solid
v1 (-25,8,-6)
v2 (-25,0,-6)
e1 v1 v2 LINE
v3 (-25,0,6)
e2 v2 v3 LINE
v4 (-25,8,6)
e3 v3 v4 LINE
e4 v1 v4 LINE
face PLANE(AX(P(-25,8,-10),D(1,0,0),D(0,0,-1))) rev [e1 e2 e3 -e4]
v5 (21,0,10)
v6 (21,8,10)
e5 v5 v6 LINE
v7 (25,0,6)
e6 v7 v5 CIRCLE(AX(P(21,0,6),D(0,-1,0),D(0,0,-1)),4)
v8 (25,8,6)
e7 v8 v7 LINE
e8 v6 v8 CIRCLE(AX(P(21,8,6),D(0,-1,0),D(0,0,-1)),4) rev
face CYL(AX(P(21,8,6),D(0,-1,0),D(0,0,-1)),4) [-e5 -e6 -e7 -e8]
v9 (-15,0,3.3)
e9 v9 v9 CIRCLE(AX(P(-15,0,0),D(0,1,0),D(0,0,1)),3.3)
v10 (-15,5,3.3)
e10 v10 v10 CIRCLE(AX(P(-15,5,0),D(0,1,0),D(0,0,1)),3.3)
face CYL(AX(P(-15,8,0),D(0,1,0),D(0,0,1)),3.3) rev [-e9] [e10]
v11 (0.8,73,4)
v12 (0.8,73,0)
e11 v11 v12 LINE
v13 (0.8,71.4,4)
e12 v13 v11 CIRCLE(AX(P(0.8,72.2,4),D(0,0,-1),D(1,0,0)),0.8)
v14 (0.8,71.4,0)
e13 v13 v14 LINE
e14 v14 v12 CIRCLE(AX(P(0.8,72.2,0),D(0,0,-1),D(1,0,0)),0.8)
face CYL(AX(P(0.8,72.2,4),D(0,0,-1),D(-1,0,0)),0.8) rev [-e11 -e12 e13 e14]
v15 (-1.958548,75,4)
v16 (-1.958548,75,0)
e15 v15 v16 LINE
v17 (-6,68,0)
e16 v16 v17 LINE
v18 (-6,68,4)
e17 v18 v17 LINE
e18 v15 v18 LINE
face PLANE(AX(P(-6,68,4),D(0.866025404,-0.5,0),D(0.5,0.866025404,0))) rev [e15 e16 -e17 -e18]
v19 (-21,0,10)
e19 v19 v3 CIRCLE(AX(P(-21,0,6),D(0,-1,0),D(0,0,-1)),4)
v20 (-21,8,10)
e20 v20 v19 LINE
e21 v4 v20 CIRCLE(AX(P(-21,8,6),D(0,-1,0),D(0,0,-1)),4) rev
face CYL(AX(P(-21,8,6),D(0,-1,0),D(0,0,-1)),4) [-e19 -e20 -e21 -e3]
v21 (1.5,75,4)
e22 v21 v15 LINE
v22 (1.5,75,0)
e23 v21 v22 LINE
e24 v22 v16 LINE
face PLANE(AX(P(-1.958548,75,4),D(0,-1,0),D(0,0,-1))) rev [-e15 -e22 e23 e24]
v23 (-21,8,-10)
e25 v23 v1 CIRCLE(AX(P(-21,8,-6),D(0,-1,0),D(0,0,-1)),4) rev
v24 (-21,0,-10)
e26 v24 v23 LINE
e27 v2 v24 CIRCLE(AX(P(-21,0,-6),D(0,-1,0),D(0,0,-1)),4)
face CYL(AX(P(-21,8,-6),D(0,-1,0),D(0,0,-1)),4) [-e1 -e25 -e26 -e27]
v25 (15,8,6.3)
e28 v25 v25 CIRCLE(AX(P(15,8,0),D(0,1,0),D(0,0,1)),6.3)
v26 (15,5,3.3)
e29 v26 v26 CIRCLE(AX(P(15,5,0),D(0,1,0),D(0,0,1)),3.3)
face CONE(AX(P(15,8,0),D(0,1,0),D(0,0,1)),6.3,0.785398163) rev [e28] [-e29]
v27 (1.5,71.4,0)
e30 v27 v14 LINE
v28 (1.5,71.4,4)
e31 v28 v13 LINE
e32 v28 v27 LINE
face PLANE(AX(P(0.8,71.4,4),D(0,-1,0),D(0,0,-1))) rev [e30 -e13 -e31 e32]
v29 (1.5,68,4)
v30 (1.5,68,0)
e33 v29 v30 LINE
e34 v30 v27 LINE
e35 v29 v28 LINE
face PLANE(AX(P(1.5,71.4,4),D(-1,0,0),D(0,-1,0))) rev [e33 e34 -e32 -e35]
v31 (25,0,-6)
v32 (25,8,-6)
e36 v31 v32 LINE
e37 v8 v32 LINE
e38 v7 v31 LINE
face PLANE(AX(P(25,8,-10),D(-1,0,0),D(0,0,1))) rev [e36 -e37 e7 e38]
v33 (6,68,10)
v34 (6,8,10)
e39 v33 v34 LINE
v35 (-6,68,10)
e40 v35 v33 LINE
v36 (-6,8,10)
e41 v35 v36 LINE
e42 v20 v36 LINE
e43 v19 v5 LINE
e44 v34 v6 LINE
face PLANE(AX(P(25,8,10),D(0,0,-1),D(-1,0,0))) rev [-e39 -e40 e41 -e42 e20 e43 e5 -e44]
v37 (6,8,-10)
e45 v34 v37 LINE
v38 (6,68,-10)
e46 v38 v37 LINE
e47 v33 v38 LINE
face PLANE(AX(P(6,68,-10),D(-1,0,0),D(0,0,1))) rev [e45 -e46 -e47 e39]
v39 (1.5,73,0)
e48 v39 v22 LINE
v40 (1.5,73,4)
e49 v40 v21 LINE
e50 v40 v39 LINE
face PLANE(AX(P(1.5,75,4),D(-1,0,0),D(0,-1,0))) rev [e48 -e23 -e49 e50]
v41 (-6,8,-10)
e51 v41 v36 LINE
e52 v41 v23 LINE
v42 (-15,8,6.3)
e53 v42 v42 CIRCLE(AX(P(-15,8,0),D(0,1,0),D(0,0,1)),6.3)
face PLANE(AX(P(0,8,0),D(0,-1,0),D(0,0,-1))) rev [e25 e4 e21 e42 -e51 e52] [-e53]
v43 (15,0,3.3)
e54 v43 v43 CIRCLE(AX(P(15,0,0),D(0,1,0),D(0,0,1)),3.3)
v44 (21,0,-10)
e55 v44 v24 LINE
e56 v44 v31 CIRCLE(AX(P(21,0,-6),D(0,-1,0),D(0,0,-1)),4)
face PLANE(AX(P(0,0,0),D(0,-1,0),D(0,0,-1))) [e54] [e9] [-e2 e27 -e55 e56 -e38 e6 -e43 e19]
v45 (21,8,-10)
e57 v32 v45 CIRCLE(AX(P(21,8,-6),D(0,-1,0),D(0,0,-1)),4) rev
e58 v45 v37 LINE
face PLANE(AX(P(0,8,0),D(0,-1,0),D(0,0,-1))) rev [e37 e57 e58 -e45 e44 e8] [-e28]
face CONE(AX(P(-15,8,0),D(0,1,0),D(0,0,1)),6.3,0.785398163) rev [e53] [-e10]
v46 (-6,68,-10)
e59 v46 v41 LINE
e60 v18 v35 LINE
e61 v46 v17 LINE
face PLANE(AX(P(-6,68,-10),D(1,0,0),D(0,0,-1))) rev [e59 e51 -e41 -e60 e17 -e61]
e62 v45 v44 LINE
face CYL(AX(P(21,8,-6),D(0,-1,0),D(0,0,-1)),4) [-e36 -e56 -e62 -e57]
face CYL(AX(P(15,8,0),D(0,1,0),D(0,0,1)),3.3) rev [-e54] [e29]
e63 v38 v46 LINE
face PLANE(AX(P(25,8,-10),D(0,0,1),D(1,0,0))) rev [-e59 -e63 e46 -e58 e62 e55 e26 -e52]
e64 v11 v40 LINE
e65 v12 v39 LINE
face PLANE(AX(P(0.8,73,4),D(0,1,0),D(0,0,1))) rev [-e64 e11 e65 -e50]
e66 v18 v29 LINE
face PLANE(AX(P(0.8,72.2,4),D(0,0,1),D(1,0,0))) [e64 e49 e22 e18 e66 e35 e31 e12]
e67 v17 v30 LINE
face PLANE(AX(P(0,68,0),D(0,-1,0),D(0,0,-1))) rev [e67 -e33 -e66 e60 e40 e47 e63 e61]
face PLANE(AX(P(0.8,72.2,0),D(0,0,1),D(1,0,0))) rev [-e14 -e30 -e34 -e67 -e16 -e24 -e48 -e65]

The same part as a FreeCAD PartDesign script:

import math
import FreeCAD as App
import Part
import Sketcher
from FreeCAD import Vector
Q = App.Units.Quantity


def edges_at(feature, points):
    """Names of the edges that pass closest to the given points."""
    edges = feature.Shape.Edges
    near = lambda p: min(range(len(edges)), key=lambda i: edges[i].distToShape(Part.Vertex(*p))[0])
    return sorted({f"Edge{near(p) + 1}" for p in points})

doc = App.newDocument("Part")
body = doc.addObject("PartDesign::Body", "Body")

sketch1 = body.newObject("Sketcher::SketchObject", "Sketch")
sketch1.AttachmentSupport = (doc.getObject("XZ_Plane"), [""])
sketch1.MapMode = "FlatFace"
sketch1.addGeometry([
    Part.LineSegment(Vector(-25, -10, 0), Vector(-25, 10, 0)),
    Part.LineSegment(Vector(-25, 10, 0), Vector(25, 10, 0)),
    Part.LineSegment(Vector(25, 10, 0), Vector(25, -10, 0)),
    Part.LineSegment(Vector(25, -10, 0), Vector(-25, -10, 0)),
], False)
sketch1.addConstraint([
    Sketcher.Constraint("Coincident", 0, 2, 1, 1),
    Sketcher.Constraint("Coincident", 1, 2, 2, 1),
    Sketcher.Constraint("Coincident", 2, 2, 3, 1),
    Sketcher.Constraint("Coincident", 3, 2, 0, 1),
    Sketcher.Constraint("Vertical", 0),
    Sketcher.Constraint("Horizontal", 1),
    Sketcher.Constraint("Vertical", 2),
    Sketcher.Constraint("Horizontal", 3),
    Sketcher.Constraint("Symmetric", 0, 2, 2, 2, -1, 1),
    Sketcher.Constraint("DistanceX", 1, 1, 1, 2, 50.0),
    Sketcher.Constraint("DistanceY", 0, 1, 0, 2, 20.0),
])
pad1 = body.newObject("PartDesign::Pad", "Pad")
pad1.Profile = sketch1
pad1.Length = 8
pad1.Reversed = True

sketch2 = body.newObject("Sketcher::SketchObject", "Sketch001")
sketch2.AttachmentSupport = (doc.getObject("XZ_Plane"), [""])
sketch2.MapMode = "FlatFace"
sketch2.AttachmentOffset = App.Placement(Vector(0, 0, -8), App.Rotation())
sketch2.addGeometry([
    Part.Circle(Vector(-15, 0, 0), Vector(0, 0, 1), 3.3),
    Part.Circle(Vector(15, 0, 0), Vector(0, 0, 1), 3.3),
], False)
sketch2.addConstraint([
    Sketcher.Constraint("Equal", 0, 1),
    Sketcher.Constraint("Symmetric", 0, 3, 1, 3, -1, 1),
    Sketcher.Constraint("PointOnObject", 0, 3, -1),
    Sketcher.Constraint("Diameter", 0, 6.6),
    Sketcher.Constraint("DistanceX", 0, 3, -1, 1, 15.0),
])
doc.recompute()
hole = body.newObject("PartDesign::Hole", "Hole")
hole.Profile = sketch2
hole.ThreadType = "None"
hole.Diameter = 6.6
hole.DepthType = "ThroughAll"
hole.HoleCutType = "Countersink"
hole.HoleCutDiameter = 12.6
hole.HoleCutCountersinkAngle = 90
hole.Reversed = True
doc.recompute()

fillet = body.newObject("PartDesign::Fillet", "Fillet")
fillet.Base = (hole, edges_at(hole, [
    (-25, 4, -10),
    (25, 4, -10),
    (25, 4, 10),
    (-25, 4, 10),
]))
fillet.Radius = 4

sketch3 = body.newObject("Sketcher::SketchObject", "Sketch002")
sketch3.AttachmentSupport = (doc.getObject("XZ_Plane"), [""])
sketch3.MapMode = "FlatFace"
sketch3.AttachmentOffset = App.Placement(Vector(0, 0, -8), App.Rotation())
sketch3.addGeometry([
    Part.LineSegment(Vector(-6, -10, 0), Vector(-6, 10, 0)),
    Part.LineSegment(Vector(-6, 10, 0), Vector(6, 10, 0)),
    Part.LineSegment(Vector(6, 10, 0), Vector(6, -10, 0)),
    Part.LineSegment(Vector(6, -10, 0), Vector(-6, -10, 0)),
], False)
sketch3.addConstraint([
    Sketcher.Constraint("Coincident", 0, 2, 1, 1),
    Sketcher.Constraint("Coincident", 1, 2, 2, 1),
    Sketcher.Constraint("Coincident", 2, 2, 3, 1),
    Sketcher.Constraint("Coincident", 3, 2, 0, 1),
    Sketcher.Constraint("Vertical", 0),
    Sketcher.Constraint("Horizontal", 1),
    Sketcher.Constraint("Vertical", 2),
    Sketcher.Constraint("Horizontal", 3),
    Sketcher.Constraint("Symmetric", 0, 2, 2, 2, -1, 1),
    Sketcher.Constraint("DistanceX", 1, 1, 1, 2, 12.0),
    Sketcher.Constraint("DistanceY", 0, 1, 0, 2, 20.0),
])
pad2 = body.newObject("PartDesign::Pad", "Pad001")
pad2.Profile = sketch3
pad2.Length = 60
pad2.Reversed = True

sketch4 = body.newObject("Sketcher::SketchObject", "Sketch003")
sketch4.AttachmentSupport = (doc.getObject("XY_Plane"), [""])
sketch4.MapMode = "FlatFace"
sketch4.addGeometry([
    Part.LineSegment(Vector(-1.958548, 75, 0), Vector(-6, 68, 0)),
    Part.LineSegment(Vector(-6, 68, 0), Vector(1.5, 68, 0)),
    Part.LineSegment(Vector(1.5, 68, 0), Vector(1.5, 71.4, 0)),
    Part.LineSegment(Vector(1.5, 71.4, 0), Vector(0.8, 71.4, 0)),
    Part.ArcOfCircle(Part.Circle(Vector(0.8, 72.2, 0), Vector(0, 0, 1), 0.8), math.radians(90), math.radians(270)),
    Part.LineSegment(Vector(0.8, 73, 0), Vector(1.5, 73, 0)),
    Part.LineSegment(Vector(1.5, 73, 0), Vector(1.5, 75, 0)),
    Part.LineSegment(Vector(1.5, 75, 0), Vector(-1.958548, 75, 0)),
], False)
sketch4.addConstraint([
    Sketcher.Constraint("Coincident", 0, 2, 1, 1),
    Sketcher.Constraint("Coincident", 1, 2, 2, 1),
    Sketcher.Constraint("Coincident", 2, 2, 3, 1),
    Sketcher.Constraint("Tangent", 3, 2, 4, 2),
    Sketcher.Constraint("Tangent", 4, 1, 5, 1),
    Sketcher.Constraint("Coincident", 5, 2, 6, 1),
    Sketcher.Constraint("Coincident", 6, 2, 7, 1),
    Sketcher.Constraint("Coincident", 7, 2, 0, 1),
    Sketcher.Constraint("Horizontal", 1),
    Sketcher.Constraint("Vertical", 2),
    Sketcher.Constraint("Horizontal", 3),
    Sketcher.Constraint("Horizontal", 5),
    Sketcher.Constraint("Vertical", 6),
    Sketcher.Constraint("Horizontal", 7),
    Sketcher.Constraint("Vertical", 2, 2, 5, 2),
    Sketcher.Constraint("Radius", 4, 0.8),
    Sketcher.Constraint("DistanceY", 6, 1, 6, 2, 2.0),
    Sketcher.Constraint("Angle", 0, Q("-120 deg")),
    Sketcher.Constraint("DistanceX", 1, 1, 1, 2, 7.5),
    Sketcher.Constraint("DistanceX", 3, 2, 3, 1, 0.7),
    Sketcher.Constraint("DistanceY", 2, 1, 2, 2, 3.4),
    Sketcher.Constraint("DistanceX", 0, 2, -1, 1, 6.0),
    Sketcher.Constraint("DistanceY", -1, 1, 0, 2, 68.0),
])
pad3 = body.newObject("PartDesign::Pad", "Pad002")
pad3.Profile = sketch4
pad3.Length = 4

doc.recompute()
